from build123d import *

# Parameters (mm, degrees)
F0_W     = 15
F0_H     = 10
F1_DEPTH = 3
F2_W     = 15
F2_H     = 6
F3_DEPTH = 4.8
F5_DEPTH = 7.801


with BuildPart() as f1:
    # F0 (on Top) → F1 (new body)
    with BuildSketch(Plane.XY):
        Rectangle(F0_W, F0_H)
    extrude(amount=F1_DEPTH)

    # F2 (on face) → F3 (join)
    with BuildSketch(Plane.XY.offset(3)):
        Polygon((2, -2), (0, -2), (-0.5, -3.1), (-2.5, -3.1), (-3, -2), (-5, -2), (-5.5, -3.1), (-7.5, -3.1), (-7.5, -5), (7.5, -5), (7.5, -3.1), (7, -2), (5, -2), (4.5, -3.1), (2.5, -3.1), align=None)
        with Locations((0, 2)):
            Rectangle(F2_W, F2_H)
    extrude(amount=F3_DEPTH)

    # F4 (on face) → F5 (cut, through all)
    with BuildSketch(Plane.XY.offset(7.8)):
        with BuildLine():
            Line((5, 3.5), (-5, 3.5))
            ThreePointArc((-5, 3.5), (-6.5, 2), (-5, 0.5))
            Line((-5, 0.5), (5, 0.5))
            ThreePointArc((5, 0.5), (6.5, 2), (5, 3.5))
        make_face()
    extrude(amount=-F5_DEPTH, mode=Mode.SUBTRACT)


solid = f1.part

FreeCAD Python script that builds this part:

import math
import FreeCAD as App
import Part
import Sketcher
from FreeCAD import Vector
Q = App.Units.Quantity


def add_polygon(sketch, points):
    """Adds a closed chain of lines whose ends are joined by coincident constraints."""
    first, n = sketch.GeometryCount, len(points)
    for a, b in zip(points, points[1:] + points[:1]):
        sketch.addGeometry(Part.LineSegment(App.Vector(*a, 0), App.Vector(*b, 0)), False)
    for i in range(n):
        sketch.addConstraint(Sketcher.Constraint("Coincident", first + i, 2, first + (i + 1) % n, 1))

doc = App.newDocument("Part")
body = doc.addObject("PartDesign::Body", "Body")

# Sketch on XY plane
sketch1 = body.newObject("Sketcher::SketchObject", "Sketch")
sketch1.AttachmentSupport = (doc.getObject("XY_Plane"), [""])
sketch1.MapMode = "FlatFace"
add_polygon(sketch1, [(-8, 5), (-8, -5), (8, -5), (8, 5)])  # lines 0-3
sketch1.addConstraint([
    Sketcher.Constraint("Vertical", 0),
    Sketcher.Constraint("Horizontal", 1),
    Sketcher.Constraint("Vertical", 2),
    Sketcher.Constraint("Horizontal", 3),
    Sketcher.Constraint("Symmetric", 0, 2, 2, 2, -1, 1),
    Sketcher.Constraint("DistanceX", 1, 1, 1, 2, Q("15 mm")),
    Sketcher.Constraint("DistanceY", 0, 2, 0, 1, Q("10 mm")),
])
pad1 = body.newObject("PartDesign::Pad", "Pad")
pad1.Profile = sketch1
pad1.Length = 3

# Sketch on XY plane
sketch2 = body.newObject("Sketcher::SketchObject", "Sketch001")
sketch2.AttachmentSupport = (doc.getObject("XY_Plane"), [""])
sketch2.MapMode = "FlatFace"
sketch2.AttachmentOffset = App.Placement(Vector(0, 0, 3), App.Rotation())
add_polygon(sketch2, [(2, -2), (0, -2), (-0.5, -3.1), (-2.5, -3.1), (-3, -2), (-5, -2), (-5.5, -3.1), (-7.5, -3.1), (-7.5, -5), (7.5, -5), (7.5, -3.1), (7, -2), (5, -2), (4.5, -3.1), (2.5, -3.1)])  # lines 0-14
add_polygon(sketch2, [(-7.5, 5), (-7.5, -1), (7.5, -1), (7.5, 5)])  # lines 15-18
sketch2.addConstraint([
    Sketcher.Constraint("Horizontal", 0),
    Sketcher.Constraint("Horizontal", 2),
    Sketcher.Constraint("Horizontal", 4),
    Sketcher.Constraint("Horizontal", 6),
    Sketcher.Constraint("Vertical", 7),
    Sketcher.Constraint("Horizontal", 8),
    Sketcher.Constraint("Vertical", 9),
    Sketcher.Constraint("Horizontal", 11),
    Sketcher.Constraint("Horizontal", 13),
    Sketcher.Constraint("Vertical", 15),
    Sketcher.Constraint("Horizontal", 16),
    Sketcher.Constraint("Vertical", 17),
    Sketcher.Constraint("Horizontal", 18),
    Sketcher.Constraint("Symmetric", 7, 2, 17, 2, -1, 1),
    Sketcher.Constraint("Symmetric", 6, 2, 9, 2, -2),
    Sketcher.Constraint("Symmetric", 4, 2, 11, 2, -2),
    Sketcher.Constraint("Symmetric", 2, 2, 13, 2, -2),
    Sketcher.Constraint("PointOnObject", 0, 2, -2),
    Sketcher.Constraint("Parallel", 1, 5),
    Sketcher.Constraint("Parallel", 3, 10),
    Sketcher.Constraint("Parallel", 5, 12),
    Sketcher.Constraint("Parallel", 10, 14),
    Sketcher.Constraint("Horizontal", 0, 2, 3, 2),
    Sketcher.Constraint("Horizontal", 2, 2, 5, 2),
    Sketcher.Constraint("Vertical", 7, 2, 15, 2),
    Sketcher.Constraint("Equal", 0, 2),
    Sketcher.Constraint("Equal", 2, 4),
    Sketcher.Constraint("Equal", 4, 6),
    Sketcher.Constraint("DistanceX", 0, 2, 0, 1, Q("2 mm")),
    Sketcher.Constraint("DistanceX", 8, 1, 8, 2, Q("15 mm")),
    Sketcher.Constraint("DistanceY", 15, 2, 15, 1, Q("6 mm")),
    Sketcher.Constraint("DistanceY", 7, 2, 7, 1, Q("1.9 mm")),
    Sketcher.Constraint("DistanceY", 0, 2, -1, 1, Q("2 mm")),
    Sketcher.Constraint("DistanceY", 7, 2, -1, 1, Q("5 mm")),
])
pad2 = body.newObject("PartDesign::Pad", "Pad001")
pad2.Profile = sketch2
pad2.Length = 4.8

# Sketch on XY plane
sketch3 = body.newObject("Sketcher::SketchObject", "Sketch002")
sketch3.AttachmentSupport = (doc.getObject("XY_Plane"), [""])
sketch3.MapMode = "FlatFace"
sketch3.AttachmentOffset = App.Placement(Vector(0, 0, 7.8), App.Rotation())
sketch3.addGeometry([
    Part.LineSegment(Vector(5, 3.5, 0), Vector(-5, 3.5, 0)),
    Part.ArcOfCircle(Part.Circle(Vector(-5, 2, 0), Vector(0, 0, 1), 1.5), math.radians(90), math.radians(270)),
    Part.LineSegment(Vector(-5, 0.5, 0), Vector(5, 0.5, 0)),
    Part.ArcOfCircle(Part.Circle(Vector(5, 2, 0), Vector(0, 0, 1), 1.5), math.radians(-90), math.radians(90)),
], False)
sketch3.addConstraint([
    Sketcher.Constraint("Tangent", 0, 2, 1, 1),
    Sketcher.Constraint("Tangent", 1, 2, 2, 1),
    Sketcher.Constraint("Tangent", 2, 2, 3, 1),
    Sketcher.Constraint("Tangent", 3, 2, 0, 1),
    Sketcher.Constraint("Horizontal", 0),
    Sketcher.Constraint("Horizontal", 2),
    Sketcher.Constraint("Radius", 1, Q("1.5 mm")),
    Sketcher.Constraint("DistanceX", 0, 2, 0, 1, Q("10 mm")),
    Sketcher.Constraint("DistanceX", 1, 3, -1, 1, Q("5 mm")),
    Sketcher.Constraint("DistanceY", -1, 1, 1, 3, Q("2 mm")),
])
pocket1 = body.newObject("PartDesign::Pocket", "Pocket")
pocket1.Profile = sketch3
pocket1.Type = "ThroughAll"

doc.recompute()
